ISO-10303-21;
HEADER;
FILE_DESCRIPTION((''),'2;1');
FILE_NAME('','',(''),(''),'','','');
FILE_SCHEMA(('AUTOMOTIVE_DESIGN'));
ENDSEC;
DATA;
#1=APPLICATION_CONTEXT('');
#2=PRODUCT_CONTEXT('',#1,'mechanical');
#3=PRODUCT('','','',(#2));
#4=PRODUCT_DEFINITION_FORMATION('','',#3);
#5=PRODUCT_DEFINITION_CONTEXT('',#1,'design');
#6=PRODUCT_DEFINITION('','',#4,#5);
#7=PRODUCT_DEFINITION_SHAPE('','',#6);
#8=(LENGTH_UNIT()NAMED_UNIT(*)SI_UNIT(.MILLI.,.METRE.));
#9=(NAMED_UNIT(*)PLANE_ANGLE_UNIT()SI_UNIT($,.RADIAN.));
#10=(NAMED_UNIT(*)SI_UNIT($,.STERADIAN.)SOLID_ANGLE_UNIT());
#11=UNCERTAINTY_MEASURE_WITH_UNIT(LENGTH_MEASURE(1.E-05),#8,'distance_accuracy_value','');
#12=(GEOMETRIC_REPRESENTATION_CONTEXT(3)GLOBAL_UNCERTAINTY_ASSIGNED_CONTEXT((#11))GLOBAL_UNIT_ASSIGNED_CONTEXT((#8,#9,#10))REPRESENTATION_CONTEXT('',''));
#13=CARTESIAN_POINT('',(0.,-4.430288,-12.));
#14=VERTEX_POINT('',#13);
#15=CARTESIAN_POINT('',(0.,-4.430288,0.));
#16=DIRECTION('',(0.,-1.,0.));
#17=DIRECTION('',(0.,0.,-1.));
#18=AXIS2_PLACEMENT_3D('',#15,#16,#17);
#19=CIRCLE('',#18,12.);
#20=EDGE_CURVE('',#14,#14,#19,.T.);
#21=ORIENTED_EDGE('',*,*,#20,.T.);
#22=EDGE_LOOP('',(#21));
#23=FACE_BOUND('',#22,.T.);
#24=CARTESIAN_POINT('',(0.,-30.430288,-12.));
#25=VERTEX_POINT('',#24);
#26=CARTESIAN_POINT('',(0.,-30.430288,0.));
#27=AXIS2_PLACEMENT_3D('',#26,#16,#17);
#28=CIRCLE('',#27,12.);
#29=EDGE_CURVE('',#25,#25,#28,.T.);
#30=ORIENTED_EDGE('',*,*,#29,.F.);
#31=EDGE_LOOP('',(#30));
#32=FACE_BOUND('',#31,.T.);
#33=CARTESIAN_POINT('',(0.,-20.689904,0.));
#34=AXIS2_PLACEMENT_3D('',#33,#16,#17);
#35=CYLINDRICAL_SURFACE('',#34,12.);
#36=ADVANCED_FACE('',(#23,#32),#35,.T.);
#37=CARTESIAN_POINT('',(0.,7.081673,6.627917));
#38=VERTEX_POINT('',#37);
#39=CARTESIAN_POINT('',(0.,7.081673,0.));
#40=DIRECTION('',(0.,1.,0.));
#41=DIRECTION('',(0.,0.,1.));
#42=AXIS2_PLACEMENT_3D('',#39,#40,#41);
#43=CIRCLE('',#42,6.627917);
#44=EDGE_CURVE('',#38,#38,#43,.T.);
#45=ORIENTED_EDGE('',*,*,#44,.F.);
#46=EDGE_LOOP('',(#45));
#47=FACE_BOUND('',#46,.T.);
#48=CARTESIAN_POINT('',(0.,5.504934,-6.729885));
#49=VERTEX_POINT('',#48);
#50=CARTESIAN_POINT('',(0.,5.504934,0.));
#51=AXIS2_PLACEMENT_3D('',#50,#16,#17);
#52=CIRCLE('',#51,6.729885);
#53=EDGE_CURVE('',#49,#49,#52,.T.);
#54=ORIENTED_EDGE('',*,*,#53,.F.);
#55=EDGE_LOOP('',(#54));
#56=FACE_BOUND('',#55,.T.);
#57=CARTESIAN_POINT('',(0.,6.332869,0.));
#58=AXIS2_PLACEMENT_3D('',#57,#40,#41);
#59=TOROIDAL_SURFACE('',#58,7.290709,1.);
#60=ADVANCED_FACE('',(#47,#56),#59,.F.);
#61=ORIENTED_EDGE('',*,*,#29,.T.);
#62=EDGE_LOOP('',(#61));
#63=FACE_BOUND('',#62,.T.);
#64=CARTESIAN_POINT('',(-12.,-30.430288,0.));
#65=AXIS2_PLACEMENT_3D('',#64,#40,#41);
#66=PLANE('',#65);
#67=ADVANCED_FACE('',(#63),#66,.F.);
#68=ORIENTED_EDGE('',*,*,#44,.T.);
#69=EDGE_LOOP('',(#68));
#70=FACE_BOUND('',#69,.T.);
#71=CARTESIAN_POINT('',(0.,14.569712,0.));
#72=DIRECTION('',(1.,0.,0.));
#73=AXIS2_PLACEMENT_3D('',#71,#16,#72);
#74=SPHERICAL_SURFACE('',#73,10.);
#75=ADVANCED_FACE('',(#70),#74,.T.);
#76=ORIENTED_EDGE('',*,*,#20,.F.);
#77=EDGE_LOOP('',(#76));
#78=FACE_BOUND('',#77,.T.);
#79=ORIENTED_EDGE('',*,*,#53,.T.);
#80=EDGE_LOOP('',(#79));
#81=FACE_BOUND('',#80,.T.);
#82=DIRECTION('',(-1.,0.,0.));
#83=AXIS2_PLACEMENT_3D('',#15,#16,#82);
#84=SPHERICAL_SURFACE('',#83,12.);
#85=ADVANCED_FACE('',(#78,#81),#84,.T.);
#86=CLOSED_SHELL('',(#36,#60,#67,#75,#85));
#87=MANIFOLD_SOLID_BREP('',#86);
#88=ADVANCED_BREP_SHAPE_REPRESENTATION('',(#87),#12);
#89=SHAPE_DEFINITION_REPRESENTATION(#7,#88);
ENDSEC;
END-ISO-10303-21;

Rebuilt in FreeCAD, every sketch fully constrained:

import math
import FreeCAD as App
import Part
import Sketcher

V = App.Vector
Q = App.Units.Quantity


def edges_at(feature, points):
    """Names of the edges that pass closest to the given points."""
    edges = feature.Shape.Edges
    near = lambda p: min(range(len(edges)), key=lambda i: edges[i].distToShape(Part.Vertex(*p))[0])
    return sorted({f"Edge{near(p) + 1}" for p in points})

doc = App.newDocument("Part")
body = doc.addObject("PartDesign::Body", "Body")

# Sketch on XY plane
sketch1 = body.newObject("Sketcher::SketchObject", "Sketch")
sketch1.AttachmentSupport = (doc.getObject("XY_Plane"), [""])
sketch1.MapMode = "FlatFace"
sketch1.addGeometry(Part.LineSegment(V(0, -30, 0), V(0, 25, 0)), False)
sketch1.addGeometry(Part.ArcOfCircle(Part.Circle(V(0, 15, 0), V(0, 0, 1), 10), math.radians(90), math.radians(237)), False)
sketch1.addGeometry(Part.ArcOfCircle(Part.Circle(V(0, -4, 0), V(0, 0, 1), 12), math.radians(117), math.radians(180)), False)
sketch1.addGeometry(Part.LineSegment(V(-12, -4, 0), V(-12, -30, 0)), False)
sketch1.addGeometry(Part.LineSegment(V(-12, -30, 0), V(0, -30, 0)), False)
sketch1.addConstraint(Sketcher.Constraint("Coincident", 0, 2, 1, 1))
sketch1.addConstraint(Sketcher.Constraint("Coincident", 1, 2, 2, 1))
sketch1.addConstraint(Sketcher.Constraint("Tangent", 2, 2, 3, 1))
sketch1.addConstraint(Sketcher.Constraint("Coincident", 3, 2, 4, 1))
sketch1.addConstraint(Sketcher.Constraint("Coincident", 4, 2, 0, 1))
sketch1.addConstraint(Sketcher.Constraint("Vertical", 0))
sketch1.addConstraint(Sketcher.Constraint("Vertical", 3))
sketch1.addConstraint(Sketcher.Constraint("Horizontal", 4))
sketch1.addConstraint(Sketcher.Constraint("PointOnObject", 1, 3, -2))
sketch1.addConstraint(Sketcher.Constraint("PointOnObject", 2, 3, -2))
sketch1.addConstraint(Sketcher.Constraint("PointOnObject", 0, 2, -2))
sketch1.addConstraint(Sketcher.Constraint("Radius", 1, Q("10 mm")))
sketch1.addConstraint(Sketcher.Constraint("Radius", 2, Q("12 mm")))
sketch1.addConstraint(Sketcher.Constraint("DistanceY", 0, 1, 0, 2, Q("55 mm")))
sketch1.addConstraint(Sketcher.Constraint("DistanceY", 3, 2, 3, 1, Q("26 mm")))
sketch1.addConstraint(Sketcher.Constraint("DistanceY", -1, 1, 1, 3, Q("14.569712 mm")))
revolution = body.newObject("PartDesign::Revolution", "Revolution")
revolution.Profile = sketch1
revolution.ReferenceAxis = (sketch1, ["V_Axis"])
revolution.Angle = 360
doc.recompute()

fillet = body.newObject("PartDesign::Fillet", "Fillet")
fillet.Base = (revolution, edges_at(revolution, [(5.514, 6.228, 0)]))
fillet.Radius = 1

doc.recompute()
